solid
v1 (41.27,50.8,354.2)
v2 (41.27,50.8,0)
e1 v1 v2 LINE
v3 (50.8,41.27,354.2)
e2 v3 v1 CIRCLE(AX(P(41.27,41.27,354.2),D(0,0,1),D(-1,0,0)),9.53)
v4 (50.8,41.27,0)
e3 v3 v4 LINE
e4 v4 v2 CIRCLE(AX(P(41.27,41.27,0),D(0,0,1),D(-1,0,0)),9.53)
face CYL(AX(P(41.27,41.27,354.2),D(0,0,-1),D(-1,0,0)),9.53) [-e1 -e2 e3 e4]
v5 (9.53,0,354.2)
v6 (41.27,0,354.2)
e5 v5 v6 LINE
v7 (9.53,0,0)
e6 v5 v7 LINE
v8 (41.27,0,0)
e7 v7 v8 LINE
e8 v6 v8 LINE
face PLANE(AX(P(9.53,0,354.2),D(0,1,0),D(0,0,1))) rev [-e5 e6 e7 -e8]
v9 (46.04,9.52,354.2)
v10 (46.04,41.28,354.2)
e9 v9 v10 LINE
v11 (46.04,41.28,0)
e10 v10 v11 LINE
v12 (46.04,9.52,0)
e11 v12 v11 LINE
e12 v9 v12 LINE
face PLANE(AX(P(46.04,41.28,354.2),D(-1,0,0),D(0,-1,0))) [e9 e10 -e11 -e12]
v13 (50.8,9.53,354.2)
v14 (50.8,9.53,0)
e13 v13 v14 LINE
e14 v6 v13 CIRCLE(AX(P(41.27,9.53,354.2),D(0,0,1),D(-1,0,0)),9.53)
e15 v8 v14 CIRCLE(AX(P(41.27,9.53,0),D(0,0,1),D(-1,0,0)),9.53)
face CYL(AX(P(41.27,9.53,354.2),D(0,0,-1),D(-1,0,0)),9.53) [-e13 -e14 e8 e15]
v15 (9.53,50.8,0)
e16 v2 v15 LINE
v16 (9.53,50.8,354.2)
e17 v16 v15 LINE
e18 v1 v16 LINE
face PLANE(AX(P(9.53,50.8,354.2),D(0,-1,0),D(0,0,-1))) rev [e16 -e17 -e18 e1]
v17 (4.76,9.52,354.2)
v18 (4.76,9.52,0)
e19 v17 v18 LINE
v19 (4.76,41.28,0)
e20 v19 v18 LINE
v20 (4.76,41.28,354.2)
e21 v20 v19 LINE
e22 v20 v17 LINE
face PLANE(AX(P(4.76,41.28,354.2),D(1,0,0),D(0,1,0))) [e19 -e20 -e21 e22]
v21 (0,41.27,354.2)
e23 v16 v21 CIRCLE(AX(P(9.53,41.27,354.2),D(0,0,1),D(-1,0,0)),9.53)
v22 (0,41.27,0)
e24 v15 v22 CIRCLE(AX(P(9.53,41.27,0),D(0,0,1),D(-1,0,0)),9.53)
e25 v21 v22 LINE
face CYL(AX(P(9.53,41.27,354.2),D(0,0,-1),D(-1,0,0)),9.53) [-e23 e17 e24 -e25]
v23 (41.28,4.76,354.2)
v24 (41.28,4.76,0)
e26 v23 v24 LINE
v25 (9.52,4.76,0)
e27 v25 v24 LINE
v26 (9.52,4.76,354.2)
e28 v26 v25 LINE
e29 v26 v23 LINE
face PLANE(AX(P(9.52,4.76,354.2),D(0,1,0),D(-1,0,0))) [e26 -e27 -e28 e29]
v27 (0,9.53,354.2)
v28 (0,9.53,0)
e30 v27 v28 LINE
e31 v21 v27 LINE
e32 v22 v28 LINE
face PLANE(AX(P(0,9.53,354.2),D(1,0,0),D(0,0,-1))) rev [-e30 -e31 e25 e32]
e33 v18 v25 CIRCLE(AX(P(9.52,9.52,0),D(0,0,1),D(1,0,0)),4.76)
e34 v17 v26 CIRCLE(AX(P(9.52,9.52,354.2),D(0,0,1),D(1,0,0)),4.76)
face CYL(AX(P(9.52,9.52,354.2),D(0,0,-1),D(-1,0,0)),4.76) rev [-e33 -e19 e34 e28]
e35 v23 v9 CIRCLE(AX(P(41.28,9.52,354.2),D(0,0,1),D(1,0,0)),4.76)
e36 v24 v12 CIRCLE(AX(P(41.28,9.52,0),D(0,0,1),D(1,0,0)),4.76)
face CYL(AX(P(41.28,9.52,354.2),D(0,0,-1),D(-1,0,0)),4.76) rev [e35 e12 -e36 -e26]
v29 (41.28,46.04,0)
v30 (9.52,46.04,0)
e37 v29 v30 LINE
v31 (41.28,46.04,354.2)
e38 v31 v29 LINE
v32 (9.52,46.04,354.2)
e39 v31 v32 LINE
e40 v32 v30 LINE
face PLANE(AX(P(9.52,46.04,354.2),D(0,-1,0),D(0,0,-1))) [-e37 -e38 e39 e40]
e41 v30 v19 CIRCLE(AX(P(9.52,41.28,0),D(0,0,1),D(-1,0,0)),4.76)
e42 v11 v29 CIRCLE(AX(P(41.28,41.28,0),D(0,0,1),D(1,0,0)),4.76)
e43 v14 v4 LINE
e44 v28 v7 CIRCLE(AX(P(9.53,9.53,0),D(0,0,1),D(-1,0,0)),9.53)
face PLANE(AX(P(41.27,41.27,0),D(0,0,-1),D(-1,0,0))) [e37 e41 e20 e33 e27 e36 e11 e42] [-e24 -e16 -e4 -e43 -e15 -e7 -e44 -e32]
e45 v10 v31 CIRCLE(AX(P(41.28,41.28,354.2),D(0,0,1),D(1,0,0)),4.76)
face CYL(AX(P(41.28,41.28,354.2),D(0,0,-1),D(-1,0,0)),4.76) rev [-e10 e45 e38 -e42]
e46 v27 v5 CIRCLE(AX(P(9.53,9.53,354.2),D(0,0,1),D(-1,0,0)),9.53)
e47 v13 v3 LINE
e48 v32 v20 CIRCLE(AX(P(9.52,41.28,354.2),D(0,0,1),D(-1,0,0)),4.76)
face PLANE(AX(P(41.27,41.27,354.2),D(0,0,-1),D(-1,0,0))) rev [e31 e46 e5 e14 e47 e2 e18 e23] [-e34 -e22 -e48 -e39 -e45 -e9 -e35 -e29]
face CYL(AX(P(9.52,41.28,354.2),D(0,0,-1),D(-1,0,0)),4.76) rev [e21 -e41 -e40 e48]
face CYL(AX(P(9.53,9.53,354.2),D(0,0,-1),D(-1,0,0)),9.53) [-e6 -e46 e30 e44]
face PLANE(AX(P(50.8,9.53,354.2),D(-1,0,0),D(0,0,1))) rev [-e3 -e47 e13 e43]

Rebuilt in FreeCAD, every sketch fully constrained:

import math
import FreeCAD as App
import Part
import Sketcher
Q = App.Units.Quantity

doc = App.newDocument("Part")
body = doc.addObject("PartDesign::Body", "Body")

sketch1 = doc.addObject("Sketcher::SketchObject", "Sketch")
body.addObject(sketch1)
sketch1.AttachmentSupport = (doc.XY_Plane, [""])
sketch1.MapMode = "FlatFace"
sketch1.addGeometry([
    Part.LineSegment(App.Vector(9.5, 0, 0), App.Vector(41.3, 0, 0)),
    Part.ArcOfCircle(Part.Circle(App.Vector(41.3, 9.5, 0), App.Vector(0, 0, 1), 9.5), math.radians(-90), math.radians(0)),
    Part.LineSegment(App.Vector(50.8, 9.5, 0), App.Vector(50.8, 41.3, 0)),
    Part.ArcOfCircle(Part.Circle(App.Vector(41.3, 41.3, 0), App.Vector(0, 0, 1), 9.5), math.radians(0), math.radians(90)),
    Part.LineSegment(App.Vector(41.3, 50.8, 0), App.Vector(9.5, 50.8, 0)),
    Part.ArcOfCircle(Part.Circle(App.Vector(9.5, 41.3, 0), App.Vector(0, 0, 1), 9.5), math.radians(90), math.radians(180)),
    Part.LineSegment(App.Vector(0, 41.3, 0), App.Vector(0, 9.5, 0)),
    Part.ArcOfCircle(Part.Circle(App.Vector(9.5, 9.5, 0), App.Vector(0, 0, 1), 9.5), math.radians(180), math.radians(270)),
    Part.ArcOfCircle(Part.Circle(App.Vector(9.5, 41.3, 0), App.Vector(0, 0, 1), 4.8), math.radians(90), math.radians(180)),
    Part.LineSegment(App.Vector(9.5, 46, 0), App.Vector(41.3, 46, 0)),
    Part.ArcOfCircle(Part.Circle(App.Vector(41.3, 41.3, 0), App.Vector(0, 0, 1), 4.8), math.radians(0), math.radians(90)),
    Part.LineSegment(App.Vector(46, 41.3, 0), App.Vector(46, 9.5, 0)),
    Part.ArcOfCircle(Part.Circle(App.Vector(41.3, 9.5, 0), App.Vector(0, 0, 1), 4.8), math.radians(-90), math.radians(0)),
    Part.LineSegment(App.Vector(41.3, 4.8, 0), App.Vector(9.5, 4.8, 0)),
    Part.ArcOfCircle(Part.Circle(App.Vector(9.5, 9.5, 0), App.Vector(0, 0, 1), 4.8), math.radians(-180), math.radians(-90)),
    Part.LineSegment(App.Vector(4.8, 9.5, 0), App.Vector(4.8, 41.3, 0)),
], False)
sketch1.addConstraint([
    Sketcher.Constraint("Tangent", 0, 2, 1, 1),
    Sketcher.Constraint("Tangent", 1, 2, 2, 1),
    Sketcher.Constraint("Tangent", 2, 2, 3, 1),
    Sketcher.Constraint("Tangent", 3, 2, 4, 1),
    Sketcher.Constraint("Tangent", 4, 2, 5, 1),
    Sketcher.Constraint("Tangent", 5, 2, 6, 1),
    Sketcher.Constraint("Tangent", 6, 2, 7, 1),
    Sketcher.Constraint("Tangent", 7, 2, 0, 1),
    Sketcher.Constraint("Tangent", 8, 1, 9, 1),
    Sketcher.Constraint("Tangent", 9, 2, 10, 2),
    Sketcher.Constraint("Tangent", 10, 1, 11, 1),
    Sketcher.Constraint("Tangent", 11, 2, 12, 2),
    Sketcher.Constraint("Tangent", 12, 1, 13, 1),
    Sketcher.Constraint("Tangent", 13, 2, 14, 2),
    Sketcher.Constraint("Tangent", 14, 1, 15, 1),
    Sketcher.Constraint("Tangent", 15, 2, 8, 2),
    Sketcher.Constraint("Horizontal", 0),
    Sketcher.Constraint("Vertical", 2),
    Sketcher.Constraint("Horizontal", 4),
    Sketcher.Constraint("Vertical", 6),
    Sketcher.Constraint("Horizontal", 9),
    Sketcher.Constraint("Vertical", 11),
    Sketcher.Constraint("Horizontal", 13),
    Sketcher.Constraint("Vertical", 15),
    Sketcher.Constraint("Equal", 1, 3),
    Sketcher.Constraint("Equal", 3, 5),
    Sketcher.Constraint("Equal", 5, 7),
    Sketcher.Constraint("Equal", 8, 10),
    Sketcher.Constraint("Equal", 10, 12),
    Sketcher.Constraint("Equal", 12, 14),
    Sketcher.Constraint("PointOnObject", 0, 2, -1),
    Sketcher.Constraint("PointOnObject", 5, 2, -2),
    Sketcher.Constraint("Equal", 4, 2),
    Sketcher.Constraint("Equal", 13, 11),
    Sketcher.Constraint("Radius", 1, Q("9.53 mm")),
    Sketcher.Constraint("Radius", 8, Q("4.76 mm")),
    Sketcher.Constraint("DistanceX", 0, 1, 0, 2, Q("31.74 mm")),
    Sketcher.Constraint("DistanceX", 9, 1, 9, 2, Q("31.76 mm")),
    Sketcher.Constraint("DistanceX", -1, 1, 8, 3, Q("9.52 mm")),
    Sketcher.Constraint("DistanceY", -1, 1, 8, 3, Q("41.28 mm")),
])
pad1 = doc.addObject("PartDesign::Pad", "Pad")
body.addObject(pad1)
pad1.Profile = sketch1
pad1.Length = 354.2

doc.recompute()
